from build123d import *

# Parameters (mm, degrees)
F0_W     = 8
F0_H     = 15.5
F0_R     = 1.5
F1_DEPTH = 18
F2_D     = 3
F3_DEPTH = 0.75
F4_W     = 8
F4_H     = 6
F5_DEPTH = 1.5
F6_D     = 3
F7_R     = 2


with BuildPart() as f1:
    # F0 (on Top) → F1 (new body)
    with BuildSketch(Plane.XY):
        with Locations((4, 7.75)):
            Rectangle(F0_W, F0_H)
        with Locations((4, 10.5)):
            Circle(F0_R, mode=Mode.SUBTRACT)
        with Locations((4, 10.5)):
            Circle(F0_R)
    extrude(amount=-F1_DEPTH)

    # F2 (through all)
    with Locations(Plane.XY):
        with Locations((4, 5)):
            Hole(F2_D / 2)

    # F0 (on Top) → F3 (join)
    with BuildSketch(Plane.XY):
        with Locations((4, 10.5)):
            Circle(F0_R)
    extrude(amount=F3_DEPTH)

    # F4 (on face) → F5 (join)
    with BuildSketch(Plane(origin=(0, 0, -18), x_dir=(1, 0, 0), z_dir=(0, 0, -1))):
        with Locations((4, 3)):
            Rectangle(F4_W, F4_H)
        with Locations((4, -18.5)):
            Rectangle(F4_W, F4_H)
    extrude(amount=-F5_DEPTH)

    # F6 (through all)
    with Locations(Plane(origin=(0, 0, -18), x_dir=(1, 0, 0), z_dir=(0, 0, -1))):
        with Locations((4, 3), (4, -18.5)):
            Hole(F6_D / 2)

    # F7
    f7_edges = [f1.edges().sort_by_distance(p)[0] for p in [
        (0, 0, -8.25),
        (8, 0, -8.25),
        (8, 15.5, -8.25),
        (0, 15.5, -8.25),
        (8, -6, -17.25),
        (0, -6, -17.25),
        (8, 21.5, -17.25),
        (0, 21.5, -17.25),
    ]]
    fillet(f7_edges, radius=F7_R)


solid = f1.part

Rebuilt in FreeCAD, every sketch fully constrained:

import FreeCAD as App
import Part
import Sketcher

V = App.Vector
Q = App.Units.Quantity


def edges_at(feature, points):
    """Names of the edges that pass closest to the given points."""
    edges = feature.Shape.Edges
    near = lambda p: min(range(len(edges)), key=lambda i: edges[i].distToShape(Part.Vertex(*p))[0])
    return sorted({f"Edge{near(p) + 1}" for p in points})


def add_polygon(sketch, points):
    """Adds a closed chain of lines whose ends are joined by coincident constraints."""
    first, n = sketch.GeometryCount, len(points)
    for a, b in zip(points, points[1:] + points[:1]):
        sketch.addGeometry(Part.LineSegment(App.Vector(*a, 0), App.Vector(*b, 0)), False)
    for i in range(n):
        sketch.addConstraint(Sketcher.Constraint("Coincident", first + i, 2, first + (i + 1) % n, 1))

doc = App.newDocument("Part")
body = doc.addObject("PartDesign::Body", "Body")

sketch1 = body.newObject("Sketcher::SketchObject", "Sketch")
sketch1.AttachmentSupport = (doc.getObject("XY_Plane"), [""])
sketch1.MapMode = "FlatFace"
add_polygon(sketch1, [(0, 15.5), (0, 0), (8, 0), (8, 15.5)])
sketch1.addConstraint([
    Sketcher.Constraint("Vertical", 0),
    Sketcher.Constraint("Horizontal", 1),
    Sketcher.Constraint("Vertical", 2),
    Sketcher.Constraint("Horizontal", 3),
    Sketcher.Constraint("Coincident", 0, 2, -1, 1),
    Sketcher.Constraint("DistanceX", 1, 1, 1, 2, Q("8 mm")),
    Sketcher.Constraint("DistanceY", 0, 2, 0, 1, Q("15.5 mm")),
])
pad1 = body.newObject("PartDesign::Pad", "Pad")
pad1.Profile = sketch1
pad1.Length = 18
pad1.Reversed = True

sketch2 = body.newObject("Sketcher::SketchObject", "Sketch001")
sketch2.AttachmentSupport = (doc.getObject("XY_Plane"), [""])
sketch2.MapMode = "FlatFace"
sketch2.addGeometry(Part.Circle(V(4, 5, 0), V(0, 0, 1), 1.5), False)
sketch2.addConstraint([
    Sketcher.Constraint("Diameter", 0, Q("3 mm")),
    Sketcher.Constraint("DistanceX", -1, 1, 0, 3, Q("4 mm")),
    Sketcher.Constraint("DistanceY", -1, 1, 0, 3, Q("5 mm")),
])
doc.recompute()
hole = body.newObject("PartDesign::Hole", "Hole")
hole.Profile = sketch2
hole.ThreadType = "None"
hole.Diameter = 3
hole.DepthType = "ThroughAll"

sketch3 = body.newObject("Sketcher::SketchObject", "Sketch002")
sketch3.AttachmentSupport = (doc.getObject("XY_Plane"), [""])
sketch3.MapMode = "FlatFace"
sketch3.addGeometry(Part.Circle(V(4, 10.5, 0), V(0, 0, 1), 1.5), False)
sketch3.addConstraint([
    Sketcher.Constraint("Diameter", 0, Q("3 mm")),
    Sketcher.Constraint("DistanceX", -1, 1, 0, 3, Q("4 mm")),
    Sketcher.Constraint("DistanceY", -1, 1, 0, 3, Q("10.5 mm")),
])
pad2 = body.newObject("PartDesign::Pad", "Pad001")
pad2.Profile = sketch3
pad2.Length = 0.75

sketch4 = body.newObject("Sketcher::SketchObject", "Sketch003")
sketch4.AttachmentSupport = (doc.getObject("XY_Plane"), [""])
sketch4.MapMode = "FlatFace"
sketch4.AttachmentOffset = App.Placement(V(0, 0, -18), App.Rotation())
add_polygon(sketch4, [(0, -6), (0, 0), (8, 0), (8, -6)])
add_polygon(sketch4, [(0, 15.5), (0, 21.5), (8, 21.5), (8, 15.5)])
sketch4.addConstraint([
    Sketcher.Constraint("Vertical", 0),
    Sketcher.Constraint("Horizontal", 1),
    Sketcher.Constraint("Vertical", 2),
    Sketcher.Constraint("Horizontal", 3),
    Sketcher.Constraint("Vertical", 4),
    Sketcher.Constraint("Horizontal", 5),
    Sketcher.Constraint("Vertical", 6),
    Sketcher.Constraint("Horizontal", 7),
    Sketcher.Constraint("Coincident", 0, 2, -1, 1),
    Sketcher.Constraint("PointOnObject", 4, 2, -2),
    Sketcher.Constraint("Vertical", 2, 2, 5, 2),
    Sketcher.Constraint("Equal", 2, 4),
    Sketcher.Constraint("DistanceX", 1, 1, 1, 2, Q("8 mm")),
    Sketcher.Constraint("DistanceY", 0, 1, 0, 2, Q("6 mm")),
    Sketcher.Constraint("DistanceY", -1, 1, 4, 2, Q("21.5 mm")),
])
pad3 = body.newObject("PartDesign::Pad", "Pad002")
pad3.Profile = sketch4
pad3.Length = 1.5

sketch5 = body.newObject("Sketcher::SketchObject", "Sketch004")
sketch5.AttachmentSupport = (doc.getObject("XY_Plane"), [""])
sketch5.MapMode = "FlatFace"
sketch5.AttachmentOffset = App.Placement(V(0, 0, -18), App.Rotation())
sketch5.addGeometry([
    Part.Circle(V(4, -3, 0), V(0, 0, 1), 1.5),
    Part.Circle(V(4, 18.5, 0), V(0, 0, 1), 1.5),
], False)
sketch5.addConstraint([
    Sketcher.Constraint("Equal", 0, 1),
    Sketcher.Constraint("Vertical", 0, 3, 1, 3),
    Sketcher.Constraint("Diameter", 0, Q("3 mm")),
    Sketcher.Constraint("DistanceX", -1, 1, 0, 3, Q("4 mm")),
    Sketcher.Constraint("DistanceY", 0, 3, -1, 1, Q("3 mm")),
    Sketcher.Constraint("DistanceY", -1, 1, 1, 3, Q("18.5 mm")),
])
doc.recompute()
hole2 = body.newObject("PartDesign::Hole", "Hole001")
hole2.Profile = sketch5
hole2.ThreadType = "None"
hole2.Diameter = 3
hole2.DepthType = "ThroughAll"
hole2.Reversed = True
doc.recompute()

fillet = body.newObject("PartDesign::Fillet", "Fillet")
fillet.Base = (hole2, edges_at(hole2, [
    (0, 0, -8.25),
    (8, 0, -8.25),
    (8, 15.5, -8.25),
    (0, 15.5, -8.25),
    (8, -6, -17.25),
    (0, -6, -17.25),
    (8, 21.5, -17.25),
    (0, 21.5, -17.25),
]))
fillet.Radius = 2

doc.recompute()
